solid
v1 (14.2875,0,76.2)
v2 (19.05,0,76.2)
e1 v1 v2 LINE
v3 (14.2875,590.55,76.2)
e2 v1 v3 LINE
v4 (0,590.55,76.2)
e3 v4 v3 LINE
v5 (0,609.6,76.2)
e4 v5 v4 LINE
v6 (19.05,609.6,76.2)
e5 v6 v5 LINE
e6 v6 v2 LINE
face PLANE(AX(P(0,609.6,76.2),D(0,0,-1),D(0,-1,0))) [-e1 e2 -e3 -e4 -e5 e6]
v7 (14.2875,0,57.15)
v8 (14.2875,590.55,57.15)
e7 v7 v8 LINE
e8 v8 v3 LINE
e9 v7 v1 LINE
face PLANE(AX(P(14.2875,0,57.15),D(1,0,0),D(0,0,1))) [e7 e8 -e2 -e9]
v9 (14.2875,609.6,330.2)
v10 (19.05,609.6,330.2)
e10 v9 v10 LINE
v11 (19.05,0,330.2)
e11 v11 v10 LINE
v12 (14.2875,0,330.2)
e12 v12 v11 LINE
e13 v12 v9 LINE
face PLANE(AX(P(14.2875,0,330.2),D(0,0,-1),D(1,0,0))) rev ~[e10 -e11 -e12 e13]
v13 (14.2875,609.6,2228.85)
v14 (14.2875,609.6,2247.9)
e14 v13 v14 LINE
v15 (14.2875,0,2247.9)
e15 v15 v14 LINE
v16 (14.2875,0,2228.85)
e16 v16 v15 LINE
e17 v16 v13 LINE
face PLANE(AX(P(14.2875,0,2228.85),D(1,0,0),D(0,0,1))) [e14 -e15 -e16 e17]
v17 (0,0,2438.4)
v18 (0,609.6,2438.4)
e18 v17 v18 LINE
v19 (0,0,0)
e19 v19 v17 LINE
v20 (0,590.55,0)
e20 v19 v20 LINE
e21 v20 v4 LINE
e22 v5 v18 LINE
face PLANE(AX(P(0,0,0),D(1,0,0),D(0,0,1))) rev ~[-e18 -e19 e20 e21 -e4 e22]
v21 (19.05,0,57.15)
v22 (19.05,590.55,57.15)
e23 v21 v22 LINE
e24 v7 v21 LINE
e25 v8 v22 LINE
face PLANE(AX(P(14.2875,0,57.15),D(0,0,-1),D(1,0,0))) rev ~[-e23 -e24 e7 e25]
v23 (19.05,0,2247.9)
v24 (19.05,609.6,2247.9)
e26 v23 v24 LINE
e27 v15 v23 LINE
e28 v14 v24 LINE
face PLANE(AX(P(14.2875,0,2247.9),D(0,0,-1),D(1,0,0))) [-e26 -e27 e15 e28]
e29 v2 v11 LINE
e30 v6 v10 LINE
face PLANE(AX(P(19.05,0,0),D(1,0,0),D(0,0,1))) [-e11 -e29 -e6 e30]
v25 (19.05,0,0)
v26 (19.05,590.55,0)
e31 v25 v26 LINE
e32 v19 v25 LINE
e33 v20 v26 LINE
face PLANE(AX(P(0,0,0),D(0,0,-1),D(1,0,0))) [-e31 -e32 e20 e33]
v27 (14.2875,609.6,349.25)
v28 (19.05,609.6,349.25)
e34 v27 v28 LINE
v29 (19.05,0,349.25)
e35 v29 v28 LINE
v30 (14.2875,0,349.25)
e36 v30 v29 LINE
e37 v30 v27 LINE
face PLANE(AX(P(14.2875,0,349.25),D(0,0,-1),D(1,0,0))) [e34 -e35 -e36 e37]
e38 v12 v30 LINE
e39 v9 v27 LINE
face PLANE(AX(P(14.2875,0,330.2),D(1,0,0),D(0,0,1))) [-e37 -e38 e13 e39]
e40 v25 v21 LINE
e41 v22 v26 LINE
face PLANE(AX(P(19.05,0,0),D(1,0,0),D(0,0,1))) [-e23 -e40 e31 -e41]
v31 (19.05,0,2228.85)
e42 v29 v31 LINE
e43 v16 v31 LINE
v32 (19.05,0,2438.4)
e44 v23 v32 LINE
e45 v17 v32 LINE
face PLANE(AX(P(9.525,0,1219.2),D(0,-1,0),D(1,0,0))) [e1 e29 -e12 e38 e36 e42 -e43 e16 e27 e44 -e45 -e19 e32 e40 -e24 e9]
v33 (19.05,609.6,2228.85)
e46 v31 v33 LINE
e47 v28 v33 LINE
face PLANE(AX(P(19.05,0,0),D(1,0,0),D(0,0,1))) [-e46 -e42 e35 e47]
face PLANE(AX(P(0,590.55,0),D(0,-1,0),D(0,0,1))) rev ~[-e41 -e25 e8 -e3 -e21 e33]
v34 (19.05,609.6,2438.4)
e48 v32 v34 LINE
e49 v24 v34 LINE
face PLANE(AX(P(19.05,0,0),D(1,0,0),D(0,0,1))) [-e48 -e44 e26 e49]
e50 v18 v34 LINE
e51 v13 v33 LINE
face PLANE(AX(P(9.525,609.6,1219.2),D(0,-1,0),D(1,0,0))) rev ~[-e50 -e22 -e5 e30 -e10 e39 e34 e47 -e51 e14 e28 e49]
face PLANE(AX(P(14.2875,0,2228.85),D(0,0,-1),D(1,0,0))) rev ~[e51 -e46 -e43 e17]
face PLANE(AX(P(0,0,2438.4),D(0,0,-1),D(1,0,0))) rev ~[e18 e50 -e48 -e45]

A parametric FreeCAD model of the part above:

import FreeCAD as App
import Part
import Sketcher
Q = App.Units.Quantity


def add_polygon(sketch, points):
    """Adds a closed chain of lines whose ends are joined by coincident constraints."""
    first, n = sketch.GeometryCount, len(points)
    for a, b in zip(points, points[1:] + points[:1]):
        sketch.addGeometry(Part.LineSegment(App.Vector(*a, 0), App.Vector(*b, 0)), False)
    for i in range(n):
        sketch.addConstraint(Sketcher.Constraint("Coincident", first + i, 2, first + (i + 1) % n, 1))

doc = App.newDocument("Part")
params = doc.addObject("Spreadsheet::Sheet", "Params")
for row, (alias, value) in enumerate([
    ("sketch1_height", "96 in"),
    ("sketch1_width", "0.75 in"),
    ("pad1_length", "24 in"),
    ("sketch2_height", "3 in"),
    ("sketch2_width", "0.75 in"),
    ("sketch3_height", "0.75 in"),
    ("sketch3_width", "0.1875 in"),
], start=1):
    params.set(f"A{row}", alias)
    params.set(f"B{row}", "=" + value)
    params.setAlias(f"B{row}", alias)

body = doc.addObject("PartDesign::Body", "Body")

sketch1 = body.newObject("Sketcher::SketchObject", "Sketch")
sketch1.AttachmentSupport = (doc.getObject("XZ_Plane"), [""])
sketch1.MapMode = "FlatFace"
add_polygon(sketch1, [(0, 2438.4), (0, 0), (19.05, 0), (19.05, 2438.4)])
sketch1.addConstraint(Sketcher.Constraint("Vertical", 0))
sketch1.addConstraint(Sketcher.Constraint("Horizontal", 1))
sketch1.addConstraint(Sketcher.Constraint("Vertical", 2))
sketch1.addConstraint(Sketcher.Constraint("Horizontal", 3))
sketch1.addConstraint(Sketcher.Constraint("Coincident", 0, 2, -1, 1))
sketch1.addConstraint(Sketcher.Constraint("DistanceY", 0, 2, 0, 1, Q("96 in")))
sketch1.addConstraint(Sketcher.Constraint("DistanceX", 1, 1, 1, 2, Q("0.75 in")))
sketch1.setExpression("Constraints[9]", "Params.sketch1_height")
sketch1.setExpression("Constraints[10]", "Params.sketch1_width")
pad1 = body.newObject("PartDesign::Pad", "Pad")
pad1.Profile = sketch1
pad1.setExpression("Length", "Params.pad1_length")
pad1.Reversed = True

sketch2 = body.newObject("Sketcher::SketchObject", "Sketch001")
sketch2.AttachmentSupport = (doc.getObject("YZ_Plane"), [""])
sketch2.MapMode = "FlatFace"
add_polygon(sketch2, [(609.6, 76.2), (609.6, 0), (590.55, 0), (590.55, 76.2)])
sketch2.addConstraint(Sketcher.Constraint("Vertical", 0))
sketch2.addConstraint(Sketcher.Constraint("Horizontal", 1))
sketch2.addConstraint(Sketcher.Constraint("Vertical", 2))
sketch2.addConstraint(Sketcher.Constraint("Horizontal", 3))
sketch2.addConstraint(Sketcher.Constraint("PointOnObject", 0, 2, -1))
sketch2.addConstraint(Sketcher.Constraint("DistanceY", 0, 2, 0, 1, Q("3 in")))
sketch2.addConstraint(Sketcher.Constraint("DistanceX", -1, 1, 0, 2, Q("24 in")))
sketch2.addConstraint(Sketcher.Constraint("DistanceX", 1, 2, 1, 1, Q("0.75 in")))
sketch2.setExpression("Constraints[9]", "Params.sketch2_height")
sketch2.setExpression("Constraints[11]", "Params.sketch2_width")
pocket1 = body.newObject("PartDesign::Pocket", "Pocket")
pocket1.Profile = sketch2
pocket1.Type = "ThroughAll"
pocket1.Reversed = True

sketch3 = body.newObject("Sketcher::SketchObject", "Sketch002")
sketch3.AttachmentSupport = (doc.getObject("XZ_Plane"), [""])
sketch3.MapMode = "FlatFace"
add_polygon(sketch3, [(14.2875, 76.2), (14.2875, 57.15), (19.05, 57.15), (19.05, 76.2)])
add_polygon(sketch3, [(14.2875, 349.25), (14.2875, 330.2), (19.05, 330.2), (19.05, 349.25)])
add_polygon(sketch3, [(14.2875, 2247.9), (14.2875, 2228.85), (19.05, 2228.85), (19.05, 2247.9)])
sketch3.addConstraint(Sketcher.Constraint("Vertical", 0))
sketch3.addConstraint(Sketcher.Constraint("Horizontal", 1))
sketch3.addConstraint(Sketcher.Constraint("Vertical", 2))
sketch3.addConstraint(Sketcher.Constraint("Horizontal", 3))
sketch3.addConstraint(Sketcher.Constraint("Vertical", 4))
sketch3.addConstraint(Sketcher.Constraint("Horizontal", 5))
sketch3.addConstraint(Sketcher.Constraint("Vertical", 6))
sketch3.addConstraint(Sketcher.Constraint("Horizontal", 7))
sketch3.addConstraint(Sketcher.Constraint("Vertical", 8))
sketch3.addConstraint(Sketcher.Constraint("Horizontal", 9))
sketch3.addConstraint(Sketcher.Constraint("Vertical", 10))
sketch3.addConstraint(Sketcher.Constraint("Horizontal", 11))
sketch3.addConstraint(Sketcher.Constraint("Vertical", 3, 2, 4, 2))
sketch3.addConstraint(Sketcher.Constraint("Vertical", 2, 2, 5, 2))
sketch3.addConstraint(Sketcher.Constraint("Vertical", 7, 2, 8, 2))
sketch3.addConstraint(Sketcher.Constraint("Vertical", 6, 2, 9, 2))
sketch3.addConstraint(Sketcher.Constraint("Equal", 2, 4))
sketch3.addConstraint(Sketcher.Constraint("Equal", 6, 8))
sketch3.addConstraint(Sketcher.Constraint("DistanceY", -1, 1, 2, 2, Q("3 in")))
sketch3.addConstraint(Sketcher.Constraint("DistanceY", -1, 1, 4, 2, Q("13 in")))
sketch3.addConstraint(Sketcher.Constraint("DistanceY", 7, 2, 8, 2, Q("74 in")))
sketch3.addConstraint(Sketcher.Constraint("DistanceY", 0, 2, 0, 1, Q("0.75 in")))
sketch3.addConstraint(Sketcher.Constraint("DistanceX", 1, 1, 1, 2, Q("0.1875 in")))
sketch3.addConstraint(Sketcher.Constraint("DistanceX", -1, 1, 1, 2, Q("0.75 in")))
sketch3.setExpression("Constraints[33]", "Params.sketch3_height")
sketch3.setExpression("Constraints[34]", "Params.sketch3_width")
pocket2 = body.newObject("PartDesign::Pocket", "Pocket001")
pocket2.Profile = sketch3
pocket2.Type = "ThroughAll"

doc.recompute()
